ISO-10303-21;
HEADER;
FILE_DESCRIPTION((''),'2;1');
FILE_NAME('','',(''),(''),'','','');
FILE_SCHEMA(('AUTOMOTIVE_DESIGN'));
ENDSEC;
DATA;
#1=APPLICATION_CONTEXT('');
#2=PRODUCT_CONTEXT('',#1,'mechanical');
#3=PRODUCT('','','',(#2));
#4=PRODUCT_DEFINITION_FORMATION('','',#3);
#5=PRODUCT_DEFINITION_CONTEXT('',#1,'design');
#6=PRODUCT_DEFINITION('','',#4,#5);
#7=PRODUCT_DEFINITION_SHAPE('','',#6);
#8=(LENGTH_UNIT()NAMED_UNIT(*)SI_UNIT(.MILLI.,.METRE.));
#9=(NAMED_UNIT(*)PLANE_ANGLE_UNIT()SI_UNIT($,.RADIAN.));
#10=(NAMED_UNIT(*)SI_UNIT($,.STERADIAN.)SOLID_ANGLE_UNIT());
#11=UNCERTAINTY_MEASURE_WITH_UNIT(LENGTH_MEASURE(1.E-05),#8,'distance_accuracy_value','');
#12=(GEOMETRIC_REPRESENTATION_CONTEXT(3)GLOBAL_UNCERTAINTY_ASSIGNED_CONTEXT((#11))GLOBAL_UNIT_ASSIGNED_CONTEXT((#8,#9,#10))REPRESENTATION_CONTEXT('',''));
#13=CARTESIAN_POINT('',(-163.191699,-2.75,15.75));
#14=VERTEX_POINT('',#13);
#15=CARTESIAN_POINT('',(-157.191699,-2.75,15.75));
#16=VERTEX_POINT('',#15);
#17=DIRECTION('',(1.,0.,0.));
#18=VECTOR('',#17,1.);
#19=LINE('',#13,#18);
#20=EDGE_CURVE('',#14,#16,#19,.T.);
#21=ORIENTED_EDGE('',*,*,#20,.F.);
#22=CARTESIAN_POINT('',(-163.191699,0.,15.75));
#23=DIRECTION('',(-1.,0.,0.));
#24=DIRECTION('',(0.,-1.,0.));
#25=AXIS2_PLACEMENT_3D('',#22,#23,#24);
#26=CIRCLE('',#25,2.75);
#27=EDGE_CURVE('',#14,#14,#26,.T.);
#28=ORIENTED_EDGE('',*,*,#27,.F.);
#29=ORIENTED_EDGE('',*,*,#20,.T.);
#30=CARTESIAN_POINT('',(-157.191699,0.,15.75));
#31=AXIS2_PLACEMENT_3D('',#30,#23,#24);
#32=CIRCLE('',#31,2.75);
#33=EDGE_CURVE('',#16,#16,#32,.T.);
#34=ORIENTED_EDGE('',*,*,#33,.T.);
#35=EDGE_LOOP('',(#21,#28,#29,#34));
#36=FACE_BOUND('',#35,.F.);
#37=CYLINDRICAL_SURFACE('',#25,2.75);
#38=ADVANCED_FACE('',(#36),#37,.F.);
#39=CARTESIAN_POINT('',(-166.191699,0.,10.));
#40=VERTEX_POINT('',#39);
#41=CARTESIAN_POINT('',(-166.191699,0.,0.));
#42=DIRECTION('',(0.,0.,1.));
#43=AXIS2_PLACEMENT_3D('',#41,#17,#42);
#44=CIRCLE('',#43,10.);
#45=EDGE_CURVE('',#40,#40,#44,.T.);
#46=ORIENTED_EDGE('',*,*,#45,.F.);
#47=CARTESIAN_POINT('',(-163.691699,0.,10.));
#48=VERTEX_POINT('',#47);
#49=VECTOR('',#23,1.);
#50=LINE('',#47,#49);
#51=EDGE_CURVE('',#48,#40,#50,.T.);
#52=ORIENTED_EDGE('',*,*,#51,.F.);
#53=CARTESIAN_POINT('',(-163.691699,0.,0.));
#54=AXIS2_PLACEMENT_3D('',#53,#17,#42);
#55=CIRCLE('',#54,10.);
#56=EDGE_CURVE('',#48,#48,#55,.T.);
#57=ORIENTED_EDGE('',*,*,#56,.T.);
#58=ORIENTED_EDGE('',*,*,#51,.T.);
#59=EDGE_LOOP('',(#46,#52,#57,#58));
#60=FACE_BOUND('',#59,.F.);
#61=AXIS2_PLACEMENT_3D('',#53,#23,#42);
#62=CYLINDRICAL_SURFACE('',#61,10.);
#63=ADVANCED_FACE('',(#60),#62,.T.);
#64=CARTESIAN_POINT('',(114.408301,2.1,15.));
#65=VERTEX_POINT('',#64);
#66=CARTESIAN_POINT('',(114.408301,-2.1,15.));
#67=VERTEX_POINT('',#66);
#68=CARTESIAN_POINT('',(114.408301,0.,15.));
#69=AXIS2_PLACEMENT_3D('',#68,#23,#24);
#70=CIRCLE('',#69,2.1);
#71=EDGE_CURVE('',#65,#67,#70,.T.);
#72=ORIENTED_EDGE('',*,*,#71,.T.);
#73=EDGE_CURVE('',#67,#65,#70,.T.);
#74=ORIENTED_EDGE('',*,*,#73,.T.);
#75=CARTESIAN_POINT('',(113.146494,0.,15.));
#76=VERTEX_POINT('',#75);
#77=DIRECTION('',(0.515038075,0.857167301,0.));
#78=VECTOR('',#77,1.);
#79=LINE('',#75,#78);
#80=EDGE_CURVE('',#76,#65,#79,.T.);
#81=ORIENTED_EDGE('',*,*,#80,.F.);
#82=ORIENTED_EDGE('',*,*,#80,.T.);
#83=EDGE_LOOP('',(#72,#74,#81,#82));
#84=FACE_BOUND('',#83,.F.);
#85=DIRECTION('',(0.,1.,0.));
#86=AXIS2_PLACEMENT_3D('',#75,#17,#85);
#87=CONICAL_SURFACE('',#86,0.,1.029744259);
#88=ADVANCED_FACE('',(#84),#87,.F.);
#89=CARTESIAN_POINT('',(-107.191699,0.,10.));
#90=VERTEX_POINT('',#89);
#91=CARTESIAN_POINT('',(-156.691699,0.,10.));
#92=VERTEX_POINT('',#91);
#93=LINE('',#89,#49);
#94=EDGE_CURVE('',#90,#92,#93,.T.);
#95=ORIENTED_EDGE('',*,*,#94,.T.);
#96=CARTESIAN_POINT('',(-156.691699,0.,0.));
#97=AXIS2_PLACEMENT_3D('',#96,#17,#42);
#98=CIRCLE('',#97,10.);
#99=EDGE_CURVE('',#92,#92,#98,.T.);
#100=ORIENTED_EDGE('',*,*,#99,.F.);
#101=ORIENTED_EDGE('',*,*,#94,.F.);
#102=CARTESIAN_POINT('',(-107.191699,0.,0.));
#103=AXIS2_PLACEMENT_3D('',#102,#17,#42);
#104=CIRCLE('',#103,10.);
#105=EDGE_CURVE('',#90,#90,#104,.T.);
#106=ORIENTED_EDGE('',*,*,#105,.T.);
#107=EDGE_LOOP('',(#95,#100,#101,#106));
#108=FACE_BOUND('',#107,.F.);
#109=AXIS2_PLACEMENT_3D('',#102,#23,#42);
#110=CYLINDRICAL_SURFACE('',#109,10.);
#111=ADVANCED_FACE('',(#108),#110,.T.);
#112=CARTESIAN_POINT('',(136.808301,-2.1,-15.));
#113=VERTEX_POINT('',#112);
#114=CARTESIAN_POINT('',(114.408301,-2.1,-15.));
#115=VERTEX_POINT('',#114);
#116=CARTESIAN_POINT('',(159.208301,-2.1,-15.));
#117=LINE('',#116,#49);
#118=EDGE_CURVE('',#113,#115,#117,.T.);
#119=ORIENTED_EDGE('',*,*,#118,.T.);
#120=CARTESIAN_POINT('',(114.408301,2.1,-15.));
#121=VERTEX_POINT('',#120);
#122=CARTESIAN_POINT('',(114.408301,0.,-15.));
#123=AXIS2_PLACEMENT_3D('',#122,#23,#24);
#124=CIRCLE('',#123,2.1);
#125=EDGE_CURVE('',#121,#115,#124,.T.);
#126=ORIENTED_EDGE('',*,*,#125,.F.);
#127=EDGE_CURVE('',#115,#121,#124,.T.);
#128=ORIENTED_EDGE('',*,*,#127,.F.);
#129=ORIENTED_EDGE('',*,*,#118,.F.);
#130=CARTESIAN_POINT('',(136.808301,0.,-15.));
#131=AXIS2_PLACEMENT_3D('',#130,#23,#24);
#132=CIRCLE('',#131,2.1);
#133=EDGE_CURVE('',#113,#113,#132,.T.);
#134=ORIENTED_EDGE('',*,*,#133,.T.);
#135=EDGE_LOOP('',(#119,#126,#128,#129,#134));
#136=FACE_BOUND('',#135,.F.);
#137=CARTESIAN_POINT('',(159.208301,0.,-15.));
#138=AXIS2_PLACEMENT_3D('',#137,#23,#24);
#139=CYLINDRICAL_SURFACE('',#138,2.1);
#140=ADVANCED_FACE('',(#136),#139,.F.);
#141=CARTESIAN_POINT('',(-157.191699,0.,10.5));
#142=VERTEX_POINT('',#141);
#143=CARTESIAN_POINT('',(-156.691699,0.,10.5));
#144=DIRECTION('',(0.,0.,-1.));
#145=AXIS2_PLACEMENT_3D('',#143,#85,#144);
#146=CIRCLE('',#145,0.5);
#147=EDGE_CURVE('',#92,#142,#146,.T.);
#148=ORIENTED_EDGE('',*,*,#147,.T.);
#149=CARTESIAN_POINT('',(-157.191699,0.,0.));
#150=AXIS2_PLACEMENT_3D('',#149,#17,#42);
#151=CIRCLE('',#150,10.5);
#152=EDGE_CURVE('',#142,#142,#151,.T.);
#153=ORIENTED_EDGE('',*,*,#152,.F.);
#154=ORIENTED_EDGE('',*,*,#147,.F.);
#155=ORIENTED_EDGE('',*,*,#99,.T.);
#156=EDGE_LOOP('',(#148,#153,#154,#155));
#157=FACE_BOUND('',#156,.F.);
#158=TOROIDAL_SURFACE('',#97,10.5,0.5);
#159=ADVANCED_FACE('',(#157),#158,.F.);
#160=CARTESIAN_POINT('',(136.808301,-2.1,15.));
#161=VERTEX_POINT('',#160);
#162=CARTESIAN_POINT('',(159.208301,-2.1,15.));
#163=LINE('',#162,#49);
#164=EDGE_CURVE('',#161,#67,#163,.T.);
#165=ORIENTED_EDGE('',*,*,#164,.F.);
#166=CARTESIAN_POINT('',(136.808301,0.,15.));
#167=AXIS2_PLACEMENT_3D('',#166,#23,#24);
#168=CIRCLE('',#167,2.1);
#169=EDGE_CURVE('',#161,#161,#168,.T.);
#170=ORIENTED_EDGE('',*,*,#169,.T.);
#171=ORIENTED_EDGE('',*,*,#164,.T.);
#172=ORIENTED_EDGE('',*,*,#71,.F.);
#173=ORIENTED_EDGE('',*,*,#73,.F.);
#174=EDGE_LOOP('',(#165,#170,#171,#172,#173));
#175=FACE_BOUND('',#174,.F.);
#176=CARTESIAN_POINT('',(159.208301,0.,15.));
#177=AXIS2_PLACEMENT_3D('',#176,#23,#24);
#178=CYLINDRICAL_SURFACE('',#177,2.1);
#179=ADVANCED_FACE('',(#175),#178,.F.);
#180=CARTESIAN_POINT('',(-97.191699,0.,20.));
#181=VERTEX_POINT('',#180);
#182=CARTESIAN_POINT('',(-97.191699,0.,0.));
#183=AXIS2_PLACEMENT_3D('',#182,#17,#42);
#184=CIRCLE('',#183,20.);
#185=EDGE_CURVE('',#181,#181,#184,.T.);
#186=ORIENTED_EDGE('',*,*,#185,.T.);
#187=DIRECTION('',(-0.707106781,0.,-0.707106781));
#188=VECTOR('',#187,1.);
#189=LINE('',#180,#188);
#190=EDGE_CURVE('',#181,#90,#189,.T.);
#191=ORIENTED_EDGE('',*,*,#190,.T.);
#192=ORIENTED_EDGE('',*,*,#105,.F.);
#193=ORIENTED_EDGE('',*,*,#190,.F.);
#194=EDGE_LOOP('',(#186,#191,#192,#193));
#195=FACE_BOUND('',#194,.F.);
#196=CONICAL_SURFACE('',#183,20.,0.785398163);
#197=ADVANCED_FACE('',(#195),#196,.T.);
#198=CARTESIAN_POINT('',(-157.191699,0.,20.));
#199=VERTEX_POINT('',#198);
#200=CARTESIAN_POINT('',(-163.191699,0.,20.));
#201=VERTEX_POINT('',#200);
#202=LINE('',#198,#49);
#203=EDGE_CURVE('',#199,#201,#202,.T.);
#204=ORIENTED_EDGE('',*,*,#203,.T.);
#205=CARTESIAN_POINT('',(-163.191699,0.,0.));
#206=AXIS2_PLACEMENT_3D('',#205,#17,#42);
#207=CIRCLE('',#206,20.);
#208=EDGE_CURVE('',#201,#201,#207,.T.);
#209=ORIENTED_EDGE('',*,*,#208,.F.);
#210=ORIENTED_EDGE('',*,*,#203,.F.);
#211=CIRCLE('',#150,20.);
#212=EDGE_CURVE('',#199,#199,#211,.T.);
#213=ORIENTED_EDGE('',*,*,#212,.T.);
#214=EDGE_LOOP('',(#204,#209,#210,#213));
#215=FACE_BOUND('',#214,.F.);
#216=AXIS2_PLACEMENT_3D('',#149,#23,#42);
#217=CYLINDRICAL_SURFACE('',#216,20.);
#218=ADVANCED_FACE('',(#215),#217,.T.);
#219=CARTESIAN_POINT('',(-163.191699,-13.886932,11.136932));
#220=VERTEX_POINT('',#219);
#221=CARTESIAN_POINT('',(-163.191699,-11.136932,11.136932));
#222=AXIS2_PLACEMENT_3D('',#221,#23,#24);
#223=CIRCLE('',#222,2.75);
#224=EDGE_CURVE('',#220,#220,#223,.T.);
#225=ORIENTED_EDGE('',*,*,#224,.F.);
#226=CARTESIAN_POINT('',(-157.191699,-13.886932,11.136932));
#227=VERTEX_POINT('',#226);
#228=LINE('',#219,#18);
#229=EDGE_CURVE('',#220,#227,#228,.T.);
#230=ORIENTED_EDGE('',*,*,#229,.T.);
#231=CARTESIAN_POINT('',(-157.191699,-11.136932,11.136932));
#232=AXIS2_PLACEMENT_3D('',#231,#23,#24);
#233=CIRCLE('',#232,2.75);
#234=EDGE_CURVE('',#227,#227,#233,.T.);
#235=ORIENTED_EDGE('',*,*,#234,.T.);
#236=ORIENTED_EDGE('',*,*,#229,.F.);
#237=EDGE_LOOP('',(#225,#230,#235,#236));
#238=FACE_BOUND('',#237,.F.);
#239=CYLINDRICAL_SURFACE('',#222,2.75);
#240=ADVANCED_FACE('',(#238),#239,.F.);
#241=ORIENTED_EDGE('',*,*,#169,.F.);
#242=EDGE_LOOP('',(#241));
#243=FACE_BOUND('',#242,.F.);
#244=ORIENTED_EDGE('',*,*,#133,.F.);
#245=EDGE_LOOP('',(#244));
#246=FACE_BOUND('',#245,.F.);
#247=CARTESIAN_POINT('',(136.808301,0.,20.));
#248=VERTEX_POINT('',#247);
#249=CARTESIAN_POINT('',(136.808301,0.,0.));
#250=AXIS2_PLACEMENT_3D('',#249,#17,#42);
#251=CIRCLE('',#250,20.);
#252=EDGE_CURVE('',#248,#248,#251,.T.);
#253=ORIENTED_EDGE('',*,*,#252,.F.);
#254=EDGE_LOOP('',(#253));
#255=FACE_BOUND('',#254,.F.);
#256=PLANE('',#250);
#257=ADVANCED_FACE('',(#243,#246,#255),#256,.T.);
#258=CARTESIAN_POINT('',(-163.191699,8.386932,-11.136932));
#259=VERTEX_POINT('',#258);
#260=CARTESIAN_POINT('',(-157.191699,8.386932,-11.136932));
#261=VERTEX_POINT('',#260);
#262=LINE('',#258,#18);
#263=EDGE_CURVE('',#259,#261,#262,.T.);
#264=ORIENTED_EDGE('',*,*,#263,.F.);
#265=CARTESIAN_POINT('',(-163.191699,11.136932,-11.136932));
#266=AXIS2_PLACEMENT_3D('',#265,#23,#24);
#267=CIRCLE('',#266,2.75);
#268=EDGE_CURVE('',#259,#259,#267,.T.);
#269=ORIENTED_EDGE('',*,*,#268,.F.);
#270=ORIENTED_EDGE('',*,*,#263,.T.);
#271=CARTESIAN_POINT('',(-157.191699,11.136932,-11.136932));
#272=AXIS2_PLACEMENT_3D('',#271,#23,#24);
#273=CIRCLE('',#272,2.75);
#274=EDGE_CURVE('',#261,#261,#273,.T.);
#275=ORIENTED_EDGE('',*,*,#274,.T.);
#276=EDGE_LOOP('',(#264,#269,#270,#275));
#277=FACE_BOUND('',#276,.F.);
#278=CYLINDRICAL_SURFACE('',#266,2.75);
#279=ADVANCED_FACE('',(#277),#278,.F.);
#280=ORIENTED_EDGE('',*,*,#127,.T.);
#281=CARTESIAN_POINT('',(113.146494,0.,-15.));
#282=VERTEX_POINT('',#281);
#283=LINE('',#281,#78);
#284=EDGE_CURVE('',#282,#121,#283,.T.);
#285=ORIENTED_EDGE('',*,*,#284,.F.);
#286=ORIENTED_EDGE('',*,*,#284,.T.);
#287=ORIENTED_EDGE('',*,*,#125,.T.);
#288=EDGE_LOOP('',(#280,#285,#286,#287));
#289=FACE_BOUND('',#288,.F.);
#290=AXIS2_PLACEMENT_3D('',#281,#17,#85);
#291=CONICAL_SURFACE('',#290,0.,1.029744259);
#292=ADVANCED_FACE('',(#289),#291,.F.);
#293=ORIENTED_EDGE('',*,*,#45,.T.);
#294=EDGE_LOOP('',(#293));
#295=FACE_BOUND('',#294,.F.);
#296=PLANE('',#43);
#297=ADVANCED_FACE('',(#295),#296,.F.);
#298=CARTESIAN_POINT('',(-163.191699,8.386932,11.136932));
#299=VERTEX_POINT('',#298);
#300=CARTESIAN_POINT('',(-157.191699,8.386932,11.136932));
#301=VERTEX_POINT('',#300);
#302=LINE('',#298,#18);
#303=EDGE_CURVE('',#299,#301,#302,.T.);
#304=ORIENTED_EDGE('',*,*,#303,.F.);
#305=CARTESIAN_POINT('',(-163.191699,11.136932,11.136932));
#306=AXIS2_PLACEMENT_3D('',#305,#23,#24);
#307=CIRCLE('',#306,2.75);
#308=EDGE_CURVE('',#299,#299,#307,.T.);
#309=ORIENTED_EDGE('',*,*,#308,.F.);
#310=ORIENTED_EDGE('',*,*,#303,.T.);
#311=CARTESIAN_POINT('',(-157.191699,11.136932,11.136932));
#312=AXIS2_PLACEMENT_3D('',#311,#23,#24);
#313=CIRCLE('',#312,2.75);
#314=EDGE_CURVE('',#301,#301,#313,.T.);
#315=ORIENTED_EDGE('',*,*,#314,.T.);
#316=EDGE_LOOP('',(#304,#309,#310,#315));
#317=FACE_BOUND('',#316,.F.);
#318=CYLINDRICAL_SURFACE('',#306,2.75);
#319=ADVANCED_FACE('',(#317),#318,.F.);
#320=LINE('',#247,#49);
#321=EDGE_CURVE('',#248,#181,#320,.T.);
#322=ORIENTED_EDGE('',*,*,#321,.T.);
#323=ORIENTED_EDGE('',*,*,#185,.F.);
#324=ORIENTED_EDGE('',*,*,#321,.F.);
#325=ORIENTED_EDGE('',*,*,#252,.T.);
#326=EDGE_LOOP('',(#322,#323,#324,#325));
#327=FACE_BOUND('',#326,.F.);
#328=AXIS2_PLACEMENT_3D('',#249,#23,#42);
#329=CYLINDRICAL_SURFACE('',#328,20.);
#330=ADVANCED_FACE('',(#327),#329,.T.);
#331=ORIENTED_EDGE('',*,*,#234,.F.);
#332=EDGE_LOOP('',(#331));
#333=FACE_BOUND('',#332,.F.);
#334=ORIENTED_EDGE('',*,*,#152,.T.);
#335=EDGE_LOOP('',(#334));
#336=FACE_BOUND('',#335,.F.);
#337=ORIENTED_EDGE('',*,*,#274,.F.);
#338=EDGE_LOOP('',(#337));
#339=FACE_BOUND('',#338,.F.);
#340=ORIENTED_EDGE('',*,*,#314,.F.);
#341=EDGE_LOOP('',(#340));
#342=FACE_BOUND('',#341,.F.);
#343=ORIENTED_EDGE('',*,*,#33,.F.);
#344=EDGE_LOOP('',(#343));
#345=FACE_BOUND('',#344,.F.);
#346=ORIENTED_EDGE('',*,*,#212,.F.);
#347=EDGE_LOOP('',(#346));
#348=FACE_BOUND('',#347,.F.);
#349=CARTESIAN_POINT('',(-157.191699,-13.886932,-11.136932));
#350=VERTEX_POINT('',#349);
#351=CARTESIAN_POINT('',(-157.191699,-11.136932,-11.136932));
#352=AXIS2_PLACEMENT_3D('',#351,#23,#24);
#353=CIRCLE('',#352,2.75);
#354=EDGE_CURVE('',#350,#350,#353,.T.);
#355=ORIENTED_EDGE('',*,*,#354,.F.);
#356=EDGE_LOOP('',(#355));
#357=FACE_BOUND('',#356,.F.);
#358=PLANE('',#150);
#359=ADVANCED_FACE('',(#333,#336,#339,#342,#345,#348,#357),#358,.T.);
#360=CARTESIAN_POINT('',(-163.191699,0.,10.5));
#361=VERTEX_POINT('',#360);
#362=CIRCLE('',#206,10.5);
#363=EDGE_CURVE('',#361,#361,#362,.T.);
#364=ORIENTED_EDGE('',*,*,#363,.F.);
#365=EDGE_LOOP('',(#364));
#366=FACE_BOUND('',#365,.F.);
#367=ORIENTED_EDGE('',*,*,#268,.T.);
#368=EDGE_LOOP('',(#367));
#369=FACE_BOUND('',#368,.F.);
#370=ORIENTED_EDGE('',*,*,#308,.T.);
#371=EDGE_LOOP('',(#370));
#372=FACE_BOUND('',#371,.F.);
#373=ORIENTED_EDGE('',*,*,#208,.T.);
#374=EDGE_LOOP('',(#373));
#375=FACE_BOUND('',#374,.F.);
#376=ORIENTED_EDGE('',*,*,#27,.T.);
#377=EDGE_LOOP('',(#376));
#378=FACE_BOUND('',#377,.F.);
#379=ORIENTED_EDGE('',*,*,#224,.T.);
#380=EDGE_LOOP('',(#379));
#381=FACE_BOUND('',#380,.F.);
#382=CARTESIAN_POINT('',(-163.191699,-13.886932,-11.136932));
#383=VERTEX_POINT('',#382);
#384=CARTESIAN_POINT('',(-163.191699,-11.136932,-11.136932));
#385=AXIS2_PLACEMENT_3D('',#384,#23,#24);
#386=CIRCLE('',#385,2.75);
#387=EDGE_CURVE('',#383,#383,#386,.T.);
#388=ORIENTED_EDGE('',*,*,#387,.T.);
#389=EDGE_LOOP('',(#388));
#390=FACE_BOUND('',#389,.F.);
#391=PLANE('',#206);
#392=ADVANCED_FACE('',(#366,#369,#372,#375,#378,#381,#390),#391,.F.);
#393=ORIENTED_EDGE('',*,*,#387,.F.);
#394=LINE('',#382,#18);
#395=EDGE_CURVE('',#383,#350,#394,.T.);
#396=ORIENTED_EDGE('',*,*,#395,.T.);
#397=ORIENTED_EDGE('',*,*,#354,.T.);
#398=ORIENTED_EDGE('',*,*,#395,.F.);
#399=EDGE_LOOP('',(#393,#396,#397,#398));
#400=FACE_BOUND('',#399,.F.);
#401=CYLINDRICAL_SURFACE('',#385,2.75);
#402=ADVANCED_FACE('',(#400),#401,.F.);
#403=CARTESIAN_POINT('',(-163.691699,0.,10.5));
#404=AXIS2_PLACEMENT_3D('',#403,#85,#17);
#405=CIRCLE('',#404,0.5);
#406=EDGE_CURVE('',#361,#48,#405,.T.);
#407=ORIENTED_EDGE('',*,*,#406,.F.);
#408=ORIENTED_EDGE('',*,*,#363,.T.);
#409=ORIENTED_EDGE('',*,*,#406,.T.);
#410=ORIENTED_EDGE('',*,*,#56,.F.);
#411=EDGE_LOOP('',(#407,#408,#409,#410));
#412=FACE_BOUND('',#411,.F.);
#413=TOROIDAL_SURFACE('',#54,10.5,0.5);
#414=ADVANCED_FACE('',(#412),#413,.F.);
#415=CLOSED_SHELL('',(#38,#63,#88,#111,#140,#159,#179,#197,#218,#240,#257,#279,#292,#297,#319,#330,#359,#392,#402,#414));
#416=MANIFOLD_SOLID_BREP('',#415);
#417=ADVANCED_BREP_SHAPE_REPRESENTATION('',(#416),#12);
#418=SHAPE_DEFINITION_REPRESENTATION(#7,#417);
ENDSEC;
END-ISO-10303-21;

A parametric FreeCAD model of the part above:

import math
import FreeCAD as App
import Part
import Sketcher
from FreeCAD import Vector
Q = App.Units.Quantity

doc = App.newDocument("Part")
body = doc.addObject("PartDesign::Body", "Body")

sketch1 = doc.addObject("Sketcher::SketchObject", "Sketch")
body.addObject(sketch1)
sketch1.AttachmentSupport = (doc.XZ_Plane, [""])
sketch1.MapMode = "FlatFace"
sketch1.addGeometry(Part.LineSegment(Vector(-166.191699, 0, 0), Vector(136.808301, 0, 0)), False)
sketch1.addGeometry(Part.LineSegment(Vector(136.808301, 0, 0), Vector(136.808301, 20, 0)), False)
sketch1.addGeometry(Part.LineSegment(Vector(136.808301, 20, 0), Vector(-97.191699, 20, 0)), False)
sketch1.addGeometry(Part.LineSegment(Vector(-97.191699, 20, 0), Vector(-107.191699, 10, 0)), False)
sketch1.addGeometry(Part.LineSegment(Vector(-107.191699, 10, 0), Vector(-156.691699, 10, 0)), False)
sketch1.addGeometry(Part.ArcOfCircle(Part.Circle(Vector(-156.691699, 10.5, 0), Vector(0, 0, 1), 0.5), math.radians(180), math.radians(270)), False)
sketch1.addGeometry(Part.LineSegment(Vector(-157.191699, 10.5, 0), Vector(-157.191699, 20, 0)), False)
sketch1.addGeometry(Part.LineSegment(Vector(-157.191699, 20, 0), Vector(-163.191699, 20, 0)), False)
sketch1.addGeometry(Part.LineSegment(Vector(-163.191699, 20, 0), Vector(-163.191699, 10.5, 0)), False)
sketch1.addGeometry(Part.ArcOfCircle(Part.Circle(Vector(-163.691699, 10.5, 0), Vector(0, 0, 1), 0.5), math.radians(-90), math.radians(0)), False)
sketch1.addGeometry(Part.LineSegment(Vector(-163.691699, 10, 0), Vector(-166.191699, 10, 0)), False)
sketch1.addGeometry(Part.LineSegment(Vector(-166.191699, 10, 0), Vector(-166.191699, 0, 0)), False)
sketch1.addConstraint(Sketcher.Constraint("Coincident", 0, 2, 1, 1))
sketch1.addConstraint(Sketcher.Constraint("Coincident", 1, 2, 2, 1))
sketch1.addConstraint(Sketcher.Constraint("Coincident", 2, 2, 3, 1))
sketch1.addConstraint(Sketcher.Constraint("Coincident", 3, 2, 4, 1))
sketch1.addConstraint(Sketcher.Constraint("Tangent", 4, 2, 5, 2))
sketch1.addConstraint(Sketcher.Constraint("Tangent", 5, 1, 6, 1))
sketch1.addConstraint(Sketcher.Constraint("Coincident", 6, 2, 7, 1))
sketch1.addConstraint(Sketcher.Constraint("Coincident", 7, 2, 8, 1))
sketch1.addConstraint(Sketcher.Constraint("Tangent", 8, 2, 9, 2))
sketch1.addConstraint(Sketcher.Constraint("Tangent", 9, 1, 10, 1))
sketch1.addConstraint(Sketcher.Constraint("Coincident", 10, 2, 11, 1))
sketch1.addConstraint(Sketcher.Constraint("Coincident", 11, 2, 0, 1))
sketch1.addConstraint(Sketcher.Constraint("Horizontal", 0))
sketch1.addConstraint(Sketcher.Constraint("Vertical", 1))
sketch1.addConstraint(Sketcher.Constraint("Horizontal", 2))
sketch1.addConstraint(Sketcher.Constraint("Horizontal", 4))
sketch1.addConstraint(Sketcher.Constraint("Vertical", 6))
sketch1.addConstraint(Sketcher.Constraint("Horizontal", 7))
sketch1.addConstraint(Sketcher.Constraint("Vertical", 8))
sketch1.addConstraint(Sketcher.Constraint("Horizontal", 10))
sketch1.addConstraint(Sketcher.Constraint("Vertical", 11))
sketch1.addConstraint(Sketcher.Constraint("Equal", 5, 9))
sketch1.addConstraint(Sketcher.Constraint("PointOnObject", 0, 2, -1))
sketch1.addConstraint(Sketcher.Constraint("Horizontal", 5, 3, 9, 3))
sketch1.addConstraint(Sketcher.Constraint("Horizontal", 2, 2, 6, 2))
sketch1.addConstraint(Sketcher.Constraint("Radius", 5, 0.5))
sketch1.addConstraint(Sketcher.Constraint("DistanceX", 0, 1, 0, 2, 303.0))
sketch1.addConstraint(Sketcher.Constraint("DistanceX", 2, 2, 2, 1, 234.0))
sketch1.addConstraint(Sketcher.Constraint("DistanceX", 7, 2, 7, 1, 6.0))
sketch1.addConstraint(Sketcher.Constraint("DistanceY", 1, 1, 1, 2, 20.0))
sketch1.addConstraint(Sketcher.Constraint("DistanceY", 11, 2, 11, 1, 10.0))
sketch1.addConstraint(Sketcher.Constraint("Angle", 3, Q("-135 deg")))
sketch1.addConstraint(Sketcher.Constraint("DistanceX", 4, 2, 4, 1, 49.5))
sketch1.addConstraint(Sketcher.Constraint("DistanceX", 5, 3, -1, 1, 156.691699))
revolution = doc.addObject("PartDesign::Revolution", "Revolution")
body.addObject(revolution)
revolution.Profile = sketch1
revolution.ReferenceAxis = (sketch1, ["H_Axis"])
revolution.Angle = 360

sketch2 = doc.addObject("Sketcher::SketchObject", "Sketch001")
body.addObject(sketch2)
sketch2.AttachmentSupport = (doc.YZ_Plane, [""])
sketch2.MapMode = "FlatFace"
sketch2.AttachmentOffset = App.Placement(Vector(0, 0, -163.191699), App.Rotation())
sketch2.addGeometry(Part.Circle(Vector(0, 15.75, 0), Vector(0, 0, 1), 2.75), False)
sketch2.addGeometry(Part.Circle(Vector(11.136932, 11.136932, 0), Vector(0, 0, 1), 2.75), False)
sketch2.addGeometry(Part.Circle(Vector(11.136932, -11.136932, 0), Vector(0, 0, 1), 2.75), False)
sketch2.addGeometry(Part.Circle(Vector(-11.136932, -11.136932, 0), Vector(0, 0, 1), 2.75), False)
sketch2.addGeometry(Part.Circle(Vector(-11.136932, 11.136932, 0), Vector(0, 0, 1), 2.75), False)
sketch2.addConstraint(Sketcher.Constraint("Equal", 0, 1))
sketch2.addConstraint(Sketcher.Constraint("Equal", 1, 2))
sketch2.addConstraint(Sketcher.Constraint("Equal", 2, 3))
sketch2.addConstraint(Sketcher.Constraint("Equal", 3, 4))
sketch2.addConstraint(Sketcher.Constraint("Symmetric", 1, 3, 3, 3, -1, 1))
sketch2.addConstraint(Sketcher.Constraint("Symmetric", 2, 3, 4, 3, -1, 1))
sketch2.addConstraint(Sketcher.Constraint("Symmetric", 2, 3, 3, 3, -2))
sketch2.addConstraint(Sketcher.Constraint("PointOnObject", 0, 3, -2))
sketch2.addConstraint(Sketcher.Constraint("Diameter", 0, 5.5))
sketch2.addConstraint(Sketcher.Constraint("DistanceY", -1, 1, 0, 3, 15.75))
sketch2.addConstraint(Sketcher.Constraint("DistanceX", -1, 1, 1, 3, 11.136932))
sketch2.addConstraint(Sketcher.Constraint("DistanceY", -1, 1, 1, 3, 11.136932))
pocket1 = doc.addObject("PartDesign::Pocket", "Pocket")
body.addObject(pocket1)
pocket1.Profile = sketch2
pocket1.Length = 25
pocket1.Reversed = True

sketch3 = doc.addObject("Sketcher::SketchObject", "Sketch002")
body.addObject(sketch3)
sketch3.AttachmentSupport = (doc.YZ_Plane, [""])
sketch3.MapMode = "FlatFace"
sketch3.AttachmentOffset = App.Placement(Vector(0, 0, 136.808301), App.Rotation())
sketch3.addGeometry(Part.Circle(Vector(0, 15, 0), Vector(0, 0, 1), 2.1), False)
sketch3.addGeometry(Part.Circle(Vector(0, -15, 0), Vector(0, 0, 1), 2.1), False)
sketch3.addConstraint(Sketcher.Constraint("Equal", 0, 1))
sketch3.addConstraint(Sketcher.Constraint("Symmetric", 0, 3, 1, 3, -1, 1))
sketch3.addConstraint(Sketcher.Constraint("PointOnObject", 0, 3, -2))
sketch3.addConstraint(Sketcher.Constraint("Diameter", 0, 4.2))
sketch3.addConstraint(Sketcher.Constraint("DistanceY", -1, 1, 0, 3, 15.0))
doc.recompute()
hole = doc.addObject("PartDesign::Hole", "Hole")
body.addObject(hole)
hole.Profile = sketch3
hole.ThreadType = "None"
hole.Diameter = 4.2
hole.DepthType = "Dimension"
hole.Depth = 22.4
hole.DrillPoint = "Angled"
hole.DrillPointAngle = 118

doc.recompute()
